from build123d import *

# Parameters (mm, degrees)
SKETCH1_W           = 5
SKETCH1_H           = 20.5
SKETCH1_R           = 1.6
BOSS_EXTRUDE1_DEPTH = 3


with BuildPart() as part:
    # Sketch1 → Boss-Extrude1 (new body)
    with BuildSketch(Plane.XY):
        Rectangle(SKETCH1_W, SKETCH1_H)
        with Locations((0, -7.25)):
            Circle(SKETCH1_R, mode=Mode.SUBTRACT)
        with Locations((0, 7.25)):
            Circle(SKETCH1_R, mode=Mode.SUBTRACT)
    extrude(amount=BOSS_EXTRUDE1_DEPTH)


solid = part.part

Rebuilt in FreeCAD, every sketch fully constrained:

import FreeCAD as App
import Part
import Sketcher

V = App.Vector
Q = App.Units.Quantity

doc = App.newDocument("Part")
params = doc.addObject("Spreadsheet::Sheet", "Params")
for row, (alias, value) in enumerate([
    ("sketch1_diameter", "3.2 mm"),
    ("sketch1_width", "5 mm"),
    ("sketch1_height", "20.5 mm"),
    ("pad1_length", "3 mm"),
], start=1):
    params.set(f"A{row}", alias)
    params.set(f"B{row}", "=" + value)
    params.setAlias(f"B{row}", alias)

body = doc.addObject("PartDesign::Body", "Body")

# Sketch on XY plane
sketch1 = body.newObject("Sketcher::SketchObject", "Sketch")
sketch1.AttachmentSupport = (doc.getObject("XY_Plane"), [""])
sketch1.MapMode = "FlatFace"
sketch1.addGeometry([
    Part.LineSegment(V(-2.5, 10.2, 0), V(-2.5, -10.2, 0)),  # 0
    Part.LineSegment(V(-2.5, -10.2, 0), V(2.5, -10.2, 0)),  # 1
    Part.LineSegment(V(2.5, -10.2, 0), V(2.5, 10.2, 0)),  # 2
    Part.LineSegment(V(2.5, 10.2, 0), V(-2.5, 10.2, 0)),  # 3
    Part.Circle(V(0, -7.2, 0), V(0, 0, 1), 1.6),  # 4
    Part.Circle(V(0, 7.2, 0), V(0, 0, 1), 1.6),  # 5
], False)
sketch1.addConstraint([
    Sketcher.Constraint("Coincident", 0, 2, 1, 1),
    Sketcher.Constraint("Coincident", 1, 2, 2, 1),
    Sketcher.Constraint("Coincident", 2, 2, 3, 1),
    Sketcher.Constraint("Coincident", 3, 2, 0, 1),
    Sketcher.Constraint("Vertical", 0),
    Sketcher.Constraint("Horizontal", 1),
    Sketcher.Constraint("Vertical", 2),
    Sketcher.Constraint("Horizontal", 3),
    Sketcher.Constraint("Equal", 4, 5),
    Sketcher.Constraint("Symmetric", 4, 3, 5, 3, -1, 1),
    Sketcher.Constraint("Symmetric", 0, 2, 2, 2, -1, 1),
    Sketcher.Constraint("PointOnObject", 4, 3, -2),
    Sketcher.Constraint("Diameter", 4, Q("3.2 mm")),
    Sketcher.Constraint("DistanceX", 1, 1, 1, 2, Q("5 mm")),
    Sketcher.Constraint("DistanceY", 0, 2, 0, 1, Q("20.5 mm")),
    Sketcher.Constraint("DistanceY", 0, 2, 4, 3, Q("3 mm")),
])
sketch1.setExpression("Constraints[12]", "Params.sketch1_diameter")
sketch1.setExpression("Constraints[13]", "Params.sketch1_width")
sketch1.setExpression("Constraints[14]", "Params.sketch1_height")
pad1 = body.newObject("PartDesign::Pad", "Pad")
pad1.Profile = sketch1
pad1.setExpression("Length", "Params.pad1_length")

doc.recompute()
